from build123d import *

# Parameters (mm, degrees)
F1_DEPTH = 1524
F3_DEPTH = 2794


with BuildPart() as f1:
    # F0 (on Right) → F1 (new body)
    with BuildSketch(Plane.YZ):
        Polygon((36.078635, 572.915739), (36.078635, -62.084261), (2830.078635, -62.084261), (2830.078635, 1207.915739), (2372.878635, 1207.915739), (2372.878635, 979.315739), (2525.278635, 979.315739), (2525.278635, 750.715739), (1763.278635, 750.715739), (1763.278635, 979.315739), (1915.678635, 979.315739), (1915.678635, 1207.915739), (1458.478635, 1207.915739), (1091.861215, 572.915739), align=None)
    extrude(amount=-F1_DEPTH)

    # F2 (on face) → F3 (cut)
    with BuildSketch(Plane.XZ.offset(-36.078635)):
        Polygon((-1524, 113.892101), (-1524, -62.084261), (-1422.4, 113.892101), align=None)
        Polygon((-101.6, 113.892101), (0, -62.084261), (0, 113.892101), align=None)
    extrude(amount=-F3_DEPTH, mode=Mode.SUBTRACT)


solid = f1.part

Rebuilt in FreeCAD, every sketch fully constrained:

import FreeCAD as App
import Part
import Sketcher

V = App.Vector
Q = App.Units.Quantity

doc = App.newDocument("Part")
params = doc.addObject("Spreadsheet::Sheet", "Params")
for row, (alias, value) in enumerate([
    ("sketch1_width", "110 in"),
    ("sketch1_width2", "18 in"),
    ("sketch1_width3", "6 in"),
    ("sketch1_width4", "30 in"),
    ("sketch1_height", "25 in"),
    ("pad1_length", "60 in"),
    ("sketch2_width", "4 in"),
    ("sketch2_length", "8 in"),
    ("pocket1_length", "110 in"),
], start=1):
    params.set(f"A{row}", alias)
    params.set(f"B{row}", "=" + value)
    params.setAlias(f"B{row}", alias)

body = doc.addObject("PartDesign::Body", "Body")

sketch1 = body.newObject("Sketcher::SketchObject", "Sketch")
sketch1.AttachmentSupport = (doc.getObject("YZ_Plane"), [""])
sketch1.MapMode = "FlatFace"
sketch1.addGeometry(Part.LineSegment(V(36, 573, 0), V(36, -62, 0)), False)
sketch1.addGeometry(Part.LineSegment(V(36, -62, 0), V(2830, -62, 0)), False)
sketch1.addGeometry(Part.LineSegment(V(2830, -62, 0), V(2830, 1208, 0)), False)
sketch1.addGeometry(Part.LineSegment(V(2830, 1208, 0), V(2373, 1208, 0)), False)
sketch1.addGeometry(Part.LineSegment(V(2373, 1208, 0), V(2373, 979, 0)), False)
sketch1.addGeometry(Part.LineSegment(V(2373, 979, 0), V(2525, 979, 0)), False)
sketch1.addGeometry(Part.LineSegment(V(2525, 979, 0), V(2525, 751, 0)), False)
sketch1.addGeometry(Part.LineSegment(V(2525, 751, 0), V(1763, 751, 0)), False)
sketch1.addGeometry(Part.LineSegment(V(1763, 751, 0), V(1763, 979, 0)), False)
sketch1.addGeometry(Part.LineSegment(V(1763, 979, 0), V(1916, 979, 0)), False)
sketch1.addGeometry(Part.LineSegment(V(1916, 979, 0), V(1916, 1208, 0)), False)
sketch1.addGeometry(Part.LineSegment(V(1916, 1208, 0), V(1458, 1208, 0)), False)
sketch1.addGeometry(Part.LineSegment(V(1458, 1208, 0), V(1092, 573, 0)), False)
sketch1.addGeometry(Part.LineSegment(V(1092, 573, 0), V(36, 573, 0)), False)
sketch1.addConstraint(Sketcher.Constraint("Coincident", 0, 2, 1, 1))
sketch1.addConstraint(Sketcher.Constraint("Coincident", 1, 2, 2, 1))
sketch1.addConstraint(Sketcher.Constraint("Coincident", 2, 2, 3, 1))
sketch1.addConstraint(Sketcher.Constraint("Coincident", 3, 2, 4, 1))
sketch1.addConstraint(Sketcher.Constraint("Coincident", 4, 2, 5, 1))
sketch1.addConstraint(Sketcher.Constraint("Coincident", 5, 2, 6, 1))
sketch1.addConstraint(Sketcher.Constraint("Coincident", 6, 2, 7, 1))
sketch1.addConstraint(Sketcher.Constraint("Coincident", 7, 2, 8, 1))
sketch1.addConstraint(Sketcher.Constraint("Coincident", 8, 2, 9, 1))
sketch1.addConstraint(Sketcher.Constraint("Coincident", 9, 2, 10, 1))
sketch1.addConstraint(Sketcher.Constraint("Coincident", 10, 2, 11, 1))
sketch1.addConstraint(Sketcher.Constraint("Coincident", 11, 2, 12, 1))
sketch1.addConstraint(Sketcher.Constraint("Coincident", 12, 2, 13, 1))
sketch1.addConstraint(Sketcher.Constraint("Coincident", 13, 2, 0, 1))
sketch1.addConstraint(Sketcher.Constraint("Vertical", 0))
sketch1.addConstraint(Sketcher.Constraint("Horizontal", 1))
sketch1.addConstraint(Sketcher.Constraint("Vertical", 2))
sketch1.addConstraint(Sketcher.Constraint("Horizontal", 3))
sketch1.addConstraint(Sketcher.Constraint("Vertical", 4))
sketch1.addConstraint(Sketcher.Constraint("Horizontal", 5))
sketch1.addConstraint(Sketcher.Constraint("Vertical", 6))
sketch1.addConstraint(Sketcher.Constraint("Horizontal", 7))
sketch1.addConstraint(Sketcher.Constraint("Vertical", 8))
sketch1.addConstraint(Sketcher.Constraint("Horizontal", 9))
sketch1.addConstraint(Sketcher.Constraint("Vertical", 10))
sketch1.addConstraint(Sketcher.Constraint("Horizontal", 11))
sketch1.addConstraint(Sketcher.Constraint("Horizontal", 13))
sketch1.addConstraint(Sketcher.Constraint("Horizontal", 5, 2, 8, 2))
sketch1.addConstraint(Sketcher.Constraint("Horizontal", 3, 2, 10, 2))
sketch1.addConstraint(Sketcher.Constraint("Equal", 5, 9))
sketch1.addConstraint(Sketcher.Constraint("Equal", 3, 11))
sketch1.addConstraint(Sketcher.Constraint("Equal", 4, 6))
sketch1.addConstraint(Sketcher.Constraint("DistanceX", 1, 1, 1, 2, Q("110 in")))
sketch1.addConstraint(Sketcher.Constraint("DistanceX", 3, 2, 3, 1, Q("18 in")))
sketch1.addConstraint(Sketcher.Constraint("DistanceX", 5, 1, 5, 2, Q("6 in")))
sketch1.addConstraint(Sketcher.Constraint("DistanceX", 7, 2, 7, 1, Q("30 in")))
sketch1.addConstraint(Sketcher.Constraint("DistanceY", 0, 2, 0, 1, Q("25 in")))
sketch1.addConstraint(Sketcher.Constraint("DistanceY", 2, 1, 2, 2, Q("50 in")))
sketch1.addConstraint(Sketcher.Constraint("DistanceY", 4, 2, 4, 1, Q("9 in")))
sketch1.addConstraint(Sketcher.Constraint("Angle", 12, Q("-120 deg")))
sketch1.addConstraint(Sketcher.Constraint("DistanceY", 0, 2, -1, 1, Q("62.084261 mm")))
sketch1.addConstraint(Sketcher.Constraint("DistanceX", -1, 1, 0, 2, Q("36.078635 mm")))
sketch1.setExpression("Constraints[32]", "Params.sketch1_width")
sketch1.setExpression("Constraints[33]", "Params.sketch1_width2")
sketch1.setExpression("Constraints[34]", "Params.sketch1_width3")
sketch1.setExpression("Constraints[35]", "Params.sketch1_width4")
sketch1.setExpression("Constraints[36]", "Params.sketch1_height")
pad1 = body.newObject("PartDesign::Pad", "Pad")
pad1.Profile = sketch1
pad1.setExpression("Length", "Params.pad1_length")
pad1.Reversed = True

sketch2 = body.newObject("Sketcher::SketchObject", "Sketch001")
sketch2.AttachmentSupport = (doc.getObject("XZ_Plane"), [""])
sketch2.MapMode = "FlatFace"
sketch2.AttachmentOffset = App.Placement(V(0, 0, -36.078635), App.Rotation())
sketch2.addGeometry(Part.LineSegment(V(-1524, 114, 0), V(-1524, -62, 0)), False)
sketch2.addGeometry(Part.LineSegment(V(-1524, -62, 0), V(-1422, 114, 0)), False)
sketch2.addGeometry(Part.LineSegment(V(-1422, 114, 0), V(-1524, 114, 0)), False)
sketch2.addGeometry(Part.LineSegment(V(-102, 114, 0), V(0, -62, 0)), False)
sketch2.addGeometry(Part.LineSegment(V(0, -62, 0), V(0, 114, 0)), False)
sketch2.addGeometry(Part.LineSegment(V(0, 114, 0), V(-102, 114, 0)), False)
sketch2.addConstraint(Sketcher.Constraint("Coincident", 0, 2, 1, 1))
sketch2.addConstraint(Sketcher.Constraint("Coincident", 1, 2, 2, 1))
sketch2.addConstraint(Sketcher.Constraint("Coincident", 2, 2, 0, 1))
sketch2.addConstraint(Sketcher.Constraint("Coincident", 3, 2, 4, 1))
sketch2.addConstraint(Sketcher.Constraint("Coincident", 4, 2, 5, 1))
sketch2.addConstraint(Sketcher.Constraint("Coincident", 5, 2, 3, 1))
sketch2.addConstraint(Sketcher.Constraint("Vertical", 0))
sketch2.addConstraint(Sketcher.Constraint("Horizontal", 2))
sketch2.addConstraint(Sketcher.Constraint("Vertical", 4))
sketch2.addConstraint(Sketcher.Constraint("Horizontal", 5))
sketch2.addConstraint(Sketcher.Constraint("PointOnObject", 3, 2, -2))
sketch2.addConstraint(Sketcher.Constraint("Horizontal", 0, 2, 3, 2))
sketch2.addConstraint(Sketcher.Constraint("Horizontal", 2, 2, 4, 2))
sketch2.addConstraint(Sketcher.Constraint("Equal", 2, 5))
sketch2.addConstraint(Sketcher.Constraint("DistanceX", 2, 2, 2, 1, Q("4 in")))
sketch2.addConstraint(Sketcher.Constraint("Distance", 1, Q("8 in")))
sketch2.addConstraint(Sketcher.Constraint("DistanceX", 0, 2, -1, 1, Q("60 in")))
sketch2.addConstraint(Sketcher.Constraint("DistanceY", -1, 1, 1, 2, Q("113.892101 mm")))
sketch2.setExpression("Constraints[14]", "Params.sketch2_width")
sketch2.setExpression("Constraints[15]", "Params.sketch2_length")
pocket1 = body.newObject("PartDesign::Pocket", "Pocket")
pocket1.Profile = sketch2
pocket1.setExpression("Length", "Params.pocket1_length")

doc.recompute()
